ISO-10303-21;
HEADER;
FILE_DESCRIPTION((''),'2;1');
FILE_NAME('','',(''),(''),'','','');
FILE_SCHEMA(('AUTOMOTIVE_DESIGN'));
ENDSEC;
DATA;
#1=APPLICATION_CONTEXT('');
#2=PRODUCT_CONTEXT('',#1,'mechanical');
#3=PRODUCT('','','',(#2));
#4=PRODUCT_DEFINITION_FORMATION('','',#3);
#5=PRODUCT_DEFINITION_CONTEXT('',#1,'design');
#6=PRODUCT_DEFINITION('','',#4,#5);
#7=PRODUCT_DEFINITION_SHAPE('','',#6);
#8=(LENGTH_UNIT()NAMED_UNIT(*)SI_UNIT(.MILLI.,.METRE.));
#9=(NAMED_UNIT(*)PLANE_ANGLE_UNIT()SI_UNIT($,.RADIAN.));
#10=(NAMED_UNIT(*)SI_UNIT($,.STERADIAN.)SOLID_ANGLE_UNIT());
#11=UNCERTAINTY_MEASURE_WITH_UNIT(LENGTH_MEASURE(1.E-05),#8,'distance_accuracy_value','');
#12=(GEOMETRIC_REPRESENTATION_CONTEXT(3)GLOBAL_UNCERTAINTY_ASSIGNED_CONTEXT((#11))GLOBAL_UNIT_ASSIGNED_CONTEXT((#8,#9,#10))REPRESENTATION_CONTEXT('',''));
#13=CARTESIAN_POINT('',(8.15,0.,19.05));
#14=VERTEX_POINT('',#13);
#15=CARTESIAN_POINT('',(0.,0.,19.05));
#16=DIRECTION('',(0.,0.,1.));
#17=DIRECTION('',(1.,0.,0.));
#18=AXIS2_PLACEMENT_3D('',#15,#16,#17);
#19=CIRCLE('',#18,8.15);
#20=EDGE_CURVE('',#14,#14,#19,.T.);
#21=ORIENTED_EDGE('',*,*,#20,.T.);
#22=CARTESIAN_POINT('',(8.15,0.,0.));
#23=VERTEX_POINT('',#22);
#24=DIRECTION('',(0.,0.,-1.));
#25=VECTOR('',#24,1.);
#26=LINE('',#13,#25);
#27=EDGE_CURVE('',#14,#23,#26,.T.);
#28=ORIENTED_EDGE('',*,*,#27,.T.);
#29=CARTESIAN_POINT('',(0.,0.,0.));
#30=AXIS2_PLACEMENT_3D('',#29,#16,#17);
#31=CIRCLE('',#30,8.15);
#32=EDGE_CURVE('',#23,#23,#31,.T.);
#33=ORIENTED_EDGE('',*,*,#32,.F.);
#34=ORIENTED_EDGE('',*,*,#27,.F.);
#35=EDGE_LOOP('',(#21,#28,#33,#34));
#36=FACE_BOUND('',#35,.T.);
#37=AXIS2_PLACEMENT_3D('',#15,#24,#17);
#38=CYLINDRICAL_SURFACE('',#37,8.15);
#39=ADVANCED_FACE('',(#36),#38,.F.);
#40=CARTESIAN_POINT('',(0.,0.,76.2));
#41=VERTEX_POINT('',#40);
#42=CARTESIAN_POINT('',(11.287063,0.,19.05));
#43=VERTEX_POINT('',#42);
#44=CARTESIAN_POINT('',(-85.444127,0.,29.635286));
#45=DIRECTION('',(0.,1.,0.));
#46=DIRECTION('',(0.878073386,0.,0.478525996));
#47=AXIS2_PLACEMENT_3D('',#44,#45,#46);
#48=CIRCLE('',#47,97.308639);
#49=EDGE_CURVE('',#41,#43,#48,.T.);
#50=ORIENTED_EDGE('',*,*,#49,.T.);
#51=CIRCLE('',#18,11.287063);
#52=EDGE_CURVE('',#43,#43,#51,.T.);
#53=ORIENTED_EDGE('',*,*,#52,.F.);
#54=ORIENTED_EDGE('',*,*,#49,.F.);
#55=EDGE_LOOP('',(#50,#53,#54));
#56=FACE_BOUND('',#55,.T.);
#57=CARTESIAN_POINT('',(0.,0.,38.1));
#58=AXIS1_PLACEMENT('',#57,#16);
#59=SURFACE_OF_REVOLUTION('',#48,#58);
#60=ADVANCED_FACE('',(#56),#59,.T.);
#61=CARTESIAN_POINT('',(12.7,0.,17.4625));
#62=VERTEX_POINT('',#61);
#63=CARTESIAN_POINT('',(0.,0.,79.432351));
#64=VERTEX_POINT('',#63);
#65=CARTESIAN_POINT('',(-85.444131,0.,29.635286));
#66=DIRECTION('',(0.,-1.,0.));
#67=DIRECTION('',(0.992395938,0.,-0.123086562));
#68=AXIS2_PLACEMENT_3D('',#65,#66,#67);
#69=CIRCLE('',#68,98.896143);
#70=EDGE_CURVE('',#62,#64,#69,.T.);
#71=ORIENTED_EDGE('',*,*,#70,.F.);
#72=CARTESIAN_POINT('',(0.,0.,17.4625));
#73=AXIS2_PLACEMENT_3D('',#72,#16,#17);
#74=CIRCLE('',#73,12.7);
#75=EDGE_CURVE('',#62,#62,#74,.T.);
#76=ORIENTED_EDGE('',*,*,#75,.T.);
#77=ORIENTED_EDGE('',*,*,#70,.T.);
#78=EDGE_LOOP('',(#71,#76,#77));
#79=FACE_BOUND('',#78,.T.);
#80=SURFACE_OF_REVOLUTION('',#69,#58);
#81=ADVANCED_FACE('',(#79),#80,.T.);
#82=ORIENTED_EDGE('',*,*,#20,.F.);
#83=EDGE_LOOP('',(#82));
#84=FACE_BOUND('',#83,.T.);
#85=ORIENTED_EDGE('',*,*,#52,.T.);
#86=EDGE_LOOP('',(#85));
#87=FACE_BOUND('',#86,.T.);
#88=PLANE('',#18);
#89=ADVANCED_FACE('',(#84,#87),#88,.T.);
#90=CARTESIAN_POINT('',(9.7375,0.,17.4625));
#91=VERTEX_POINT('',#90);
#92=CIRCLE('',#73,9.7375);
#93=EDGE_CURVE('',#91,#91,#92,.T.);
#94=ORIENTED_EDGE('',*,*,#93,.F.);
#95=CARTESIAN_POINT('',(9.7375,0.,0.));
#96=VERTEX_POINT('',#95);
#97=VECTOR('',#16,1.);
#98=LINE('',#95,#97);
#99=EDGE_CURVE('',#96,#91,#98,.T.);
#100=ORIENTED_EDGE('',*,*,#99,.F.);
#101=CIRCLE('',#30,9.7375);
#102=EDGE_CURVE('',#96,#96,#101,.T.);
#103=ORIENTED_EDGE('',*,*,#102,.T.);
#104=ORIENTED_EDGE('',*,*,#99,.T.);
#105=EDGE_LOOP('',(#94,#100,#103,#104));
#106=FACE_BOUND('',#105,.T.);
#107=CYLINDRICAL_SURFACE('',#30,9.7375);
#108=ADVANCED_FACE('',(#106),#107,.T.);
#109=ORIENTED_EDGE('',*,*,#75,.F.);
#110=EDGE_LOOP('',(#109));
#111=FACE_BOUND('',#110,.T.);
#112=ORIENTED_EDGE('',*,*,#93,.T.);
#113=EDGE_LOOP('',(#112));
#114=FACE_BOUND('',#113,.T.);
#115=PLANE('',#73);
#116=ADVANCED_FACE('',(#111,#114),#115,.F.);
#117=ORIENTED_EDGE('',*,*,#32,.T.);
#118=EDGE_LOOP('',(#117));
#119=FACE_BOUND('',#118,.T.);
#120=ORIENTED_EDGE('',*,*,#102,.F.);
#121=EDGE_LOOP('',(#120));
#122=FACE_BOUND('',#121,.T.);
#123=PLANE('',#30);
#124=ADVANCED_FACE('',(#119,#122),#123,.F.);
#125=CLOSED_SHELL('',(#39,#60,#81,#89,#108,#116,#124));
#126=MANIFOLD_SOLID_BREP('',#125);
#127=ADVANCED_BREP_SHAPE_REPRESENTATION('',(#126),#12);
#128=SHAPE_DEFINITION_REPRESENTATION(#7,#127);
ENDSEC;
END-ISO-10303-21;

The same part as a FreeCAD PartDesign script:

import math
import FreeCAD as App
import Part
import Sketcher

V = App.Vector
Q = App.Units.Quantity

doc = App.newDocument("Part")
body = doc.addObject("PartDesign::Body", "Body")

sketch1 = body.newObject("Sketcher::SketchObject", "Sketch")
sketch1.AttachmentSupport = (doc.getObject("XZ_Plane"), [""])
sketch1.MapMode = "FlatFace"
sketch1.addGeometry([
    Part.LineSegment(V(0, 79.432351, 0), V(0, 76.2, 0)),
    Part.ArcOfCircle(Part.Circle(V(-85.444127, 29.635286, 0), V(0, 0, 1), 97.308639), math.radians(-6.245024), math.radians(28.589177)),
    Part.LineSegment(V(11.287063, 19.05, 0), V(8.15, 19.05, 0)),
    Part.LineSegment(V(8.15, 19.05, 0), V(8.15, 0, 0)),
    Part.LineSegment(V(8.15, 0, 0), V(9.7375, 0, 0)),
    Part.LineSegment(V(9.7375, 0, 0), V(9.7375, 17.4625, 0)),
    Part.LineSegment(V(9.7375, 17.4625, 0), V(12.7, 17.4625, 0)),
    Part.ArcOfCircle(Part.Circle(V(-85.444131, 29.635286, 0), V(0, 0, 1), 98.896143), math.radians(-7.070271), math.radians(30.233745)),
], False)
sketch1.addConstraint([
    Sketcher.Constraint("Coincident", 0, 2, 1, 2),
    Sketcher.Constraint("Coincident", 1, 1, 2, 1),
    Sketcher.Constraint("Coincident", 2, 2, 3, 1),
    Sketcher.Constraint("Coincident", 3, 2, 4, 1),
    Sketcher.Constraint("Coincident", 4, 2, 5, 1),
    Sketcher.Constraint("Coincident", 5, 2, 6, 1),
    Sketcher.Constraint("Coincident", 6, 2, 7, 1),
    Sketcher.Constraint("Coincident", 7, 2, 0, 1),
    Sketcher.Constraint("Vertical", 0),
    Sketcher.Constraint("Horizontal", 2),
    Sketcher.Constraint("Vertical", 3),
    Sketcher.Constraint("Horizontal", 4),
    Sketcher.Constraint("Vertical", 5),
    Sketcher.Constraint("Horizontal", 6),
    Sketcher.Constraint("Coincident", 7, 3, 1, 3),
    Sketcher.Constraint("PointOnObject", 0, 2, -2),
    Sketcher.Constraint("PointOnObject", 3, 2, -1),
    Sketcher.Constraint("DistanceY", -1, 1, 0, 2, Q("3 in")),
    Sketcher.Constraint("DistanceY", 3, 2, 3, 1, Q("0.75 in")),
    Sketcher.Constraint("DistanceX", -1, 1, 6, 2, Q("0.5 in")),
    Sketcher.Constraint("DistanceX", 4, 1, 4, 2, Q("0.0625 in")),
    Sketcher.Constraint("DistanceY", 5, 1, 5, 2, Q("0.6875 in")),
    Sketcher.Constraint("Radius", 1, 97.308639),
    Sketcher.Constraint("DistanceX", 6, 1, 6, 2, 2.9625),
    Sketcher.Constraint("Radius", 7, 98.896143),
])
revolution = body.newObject("PartDesign::Revolution", "Revolution")
revolution.Profile = sketch1
revolution.ReferenceAxis = (sketch1, ["V_Axis"])
revolution.Angle = 360

doc.recompute()
